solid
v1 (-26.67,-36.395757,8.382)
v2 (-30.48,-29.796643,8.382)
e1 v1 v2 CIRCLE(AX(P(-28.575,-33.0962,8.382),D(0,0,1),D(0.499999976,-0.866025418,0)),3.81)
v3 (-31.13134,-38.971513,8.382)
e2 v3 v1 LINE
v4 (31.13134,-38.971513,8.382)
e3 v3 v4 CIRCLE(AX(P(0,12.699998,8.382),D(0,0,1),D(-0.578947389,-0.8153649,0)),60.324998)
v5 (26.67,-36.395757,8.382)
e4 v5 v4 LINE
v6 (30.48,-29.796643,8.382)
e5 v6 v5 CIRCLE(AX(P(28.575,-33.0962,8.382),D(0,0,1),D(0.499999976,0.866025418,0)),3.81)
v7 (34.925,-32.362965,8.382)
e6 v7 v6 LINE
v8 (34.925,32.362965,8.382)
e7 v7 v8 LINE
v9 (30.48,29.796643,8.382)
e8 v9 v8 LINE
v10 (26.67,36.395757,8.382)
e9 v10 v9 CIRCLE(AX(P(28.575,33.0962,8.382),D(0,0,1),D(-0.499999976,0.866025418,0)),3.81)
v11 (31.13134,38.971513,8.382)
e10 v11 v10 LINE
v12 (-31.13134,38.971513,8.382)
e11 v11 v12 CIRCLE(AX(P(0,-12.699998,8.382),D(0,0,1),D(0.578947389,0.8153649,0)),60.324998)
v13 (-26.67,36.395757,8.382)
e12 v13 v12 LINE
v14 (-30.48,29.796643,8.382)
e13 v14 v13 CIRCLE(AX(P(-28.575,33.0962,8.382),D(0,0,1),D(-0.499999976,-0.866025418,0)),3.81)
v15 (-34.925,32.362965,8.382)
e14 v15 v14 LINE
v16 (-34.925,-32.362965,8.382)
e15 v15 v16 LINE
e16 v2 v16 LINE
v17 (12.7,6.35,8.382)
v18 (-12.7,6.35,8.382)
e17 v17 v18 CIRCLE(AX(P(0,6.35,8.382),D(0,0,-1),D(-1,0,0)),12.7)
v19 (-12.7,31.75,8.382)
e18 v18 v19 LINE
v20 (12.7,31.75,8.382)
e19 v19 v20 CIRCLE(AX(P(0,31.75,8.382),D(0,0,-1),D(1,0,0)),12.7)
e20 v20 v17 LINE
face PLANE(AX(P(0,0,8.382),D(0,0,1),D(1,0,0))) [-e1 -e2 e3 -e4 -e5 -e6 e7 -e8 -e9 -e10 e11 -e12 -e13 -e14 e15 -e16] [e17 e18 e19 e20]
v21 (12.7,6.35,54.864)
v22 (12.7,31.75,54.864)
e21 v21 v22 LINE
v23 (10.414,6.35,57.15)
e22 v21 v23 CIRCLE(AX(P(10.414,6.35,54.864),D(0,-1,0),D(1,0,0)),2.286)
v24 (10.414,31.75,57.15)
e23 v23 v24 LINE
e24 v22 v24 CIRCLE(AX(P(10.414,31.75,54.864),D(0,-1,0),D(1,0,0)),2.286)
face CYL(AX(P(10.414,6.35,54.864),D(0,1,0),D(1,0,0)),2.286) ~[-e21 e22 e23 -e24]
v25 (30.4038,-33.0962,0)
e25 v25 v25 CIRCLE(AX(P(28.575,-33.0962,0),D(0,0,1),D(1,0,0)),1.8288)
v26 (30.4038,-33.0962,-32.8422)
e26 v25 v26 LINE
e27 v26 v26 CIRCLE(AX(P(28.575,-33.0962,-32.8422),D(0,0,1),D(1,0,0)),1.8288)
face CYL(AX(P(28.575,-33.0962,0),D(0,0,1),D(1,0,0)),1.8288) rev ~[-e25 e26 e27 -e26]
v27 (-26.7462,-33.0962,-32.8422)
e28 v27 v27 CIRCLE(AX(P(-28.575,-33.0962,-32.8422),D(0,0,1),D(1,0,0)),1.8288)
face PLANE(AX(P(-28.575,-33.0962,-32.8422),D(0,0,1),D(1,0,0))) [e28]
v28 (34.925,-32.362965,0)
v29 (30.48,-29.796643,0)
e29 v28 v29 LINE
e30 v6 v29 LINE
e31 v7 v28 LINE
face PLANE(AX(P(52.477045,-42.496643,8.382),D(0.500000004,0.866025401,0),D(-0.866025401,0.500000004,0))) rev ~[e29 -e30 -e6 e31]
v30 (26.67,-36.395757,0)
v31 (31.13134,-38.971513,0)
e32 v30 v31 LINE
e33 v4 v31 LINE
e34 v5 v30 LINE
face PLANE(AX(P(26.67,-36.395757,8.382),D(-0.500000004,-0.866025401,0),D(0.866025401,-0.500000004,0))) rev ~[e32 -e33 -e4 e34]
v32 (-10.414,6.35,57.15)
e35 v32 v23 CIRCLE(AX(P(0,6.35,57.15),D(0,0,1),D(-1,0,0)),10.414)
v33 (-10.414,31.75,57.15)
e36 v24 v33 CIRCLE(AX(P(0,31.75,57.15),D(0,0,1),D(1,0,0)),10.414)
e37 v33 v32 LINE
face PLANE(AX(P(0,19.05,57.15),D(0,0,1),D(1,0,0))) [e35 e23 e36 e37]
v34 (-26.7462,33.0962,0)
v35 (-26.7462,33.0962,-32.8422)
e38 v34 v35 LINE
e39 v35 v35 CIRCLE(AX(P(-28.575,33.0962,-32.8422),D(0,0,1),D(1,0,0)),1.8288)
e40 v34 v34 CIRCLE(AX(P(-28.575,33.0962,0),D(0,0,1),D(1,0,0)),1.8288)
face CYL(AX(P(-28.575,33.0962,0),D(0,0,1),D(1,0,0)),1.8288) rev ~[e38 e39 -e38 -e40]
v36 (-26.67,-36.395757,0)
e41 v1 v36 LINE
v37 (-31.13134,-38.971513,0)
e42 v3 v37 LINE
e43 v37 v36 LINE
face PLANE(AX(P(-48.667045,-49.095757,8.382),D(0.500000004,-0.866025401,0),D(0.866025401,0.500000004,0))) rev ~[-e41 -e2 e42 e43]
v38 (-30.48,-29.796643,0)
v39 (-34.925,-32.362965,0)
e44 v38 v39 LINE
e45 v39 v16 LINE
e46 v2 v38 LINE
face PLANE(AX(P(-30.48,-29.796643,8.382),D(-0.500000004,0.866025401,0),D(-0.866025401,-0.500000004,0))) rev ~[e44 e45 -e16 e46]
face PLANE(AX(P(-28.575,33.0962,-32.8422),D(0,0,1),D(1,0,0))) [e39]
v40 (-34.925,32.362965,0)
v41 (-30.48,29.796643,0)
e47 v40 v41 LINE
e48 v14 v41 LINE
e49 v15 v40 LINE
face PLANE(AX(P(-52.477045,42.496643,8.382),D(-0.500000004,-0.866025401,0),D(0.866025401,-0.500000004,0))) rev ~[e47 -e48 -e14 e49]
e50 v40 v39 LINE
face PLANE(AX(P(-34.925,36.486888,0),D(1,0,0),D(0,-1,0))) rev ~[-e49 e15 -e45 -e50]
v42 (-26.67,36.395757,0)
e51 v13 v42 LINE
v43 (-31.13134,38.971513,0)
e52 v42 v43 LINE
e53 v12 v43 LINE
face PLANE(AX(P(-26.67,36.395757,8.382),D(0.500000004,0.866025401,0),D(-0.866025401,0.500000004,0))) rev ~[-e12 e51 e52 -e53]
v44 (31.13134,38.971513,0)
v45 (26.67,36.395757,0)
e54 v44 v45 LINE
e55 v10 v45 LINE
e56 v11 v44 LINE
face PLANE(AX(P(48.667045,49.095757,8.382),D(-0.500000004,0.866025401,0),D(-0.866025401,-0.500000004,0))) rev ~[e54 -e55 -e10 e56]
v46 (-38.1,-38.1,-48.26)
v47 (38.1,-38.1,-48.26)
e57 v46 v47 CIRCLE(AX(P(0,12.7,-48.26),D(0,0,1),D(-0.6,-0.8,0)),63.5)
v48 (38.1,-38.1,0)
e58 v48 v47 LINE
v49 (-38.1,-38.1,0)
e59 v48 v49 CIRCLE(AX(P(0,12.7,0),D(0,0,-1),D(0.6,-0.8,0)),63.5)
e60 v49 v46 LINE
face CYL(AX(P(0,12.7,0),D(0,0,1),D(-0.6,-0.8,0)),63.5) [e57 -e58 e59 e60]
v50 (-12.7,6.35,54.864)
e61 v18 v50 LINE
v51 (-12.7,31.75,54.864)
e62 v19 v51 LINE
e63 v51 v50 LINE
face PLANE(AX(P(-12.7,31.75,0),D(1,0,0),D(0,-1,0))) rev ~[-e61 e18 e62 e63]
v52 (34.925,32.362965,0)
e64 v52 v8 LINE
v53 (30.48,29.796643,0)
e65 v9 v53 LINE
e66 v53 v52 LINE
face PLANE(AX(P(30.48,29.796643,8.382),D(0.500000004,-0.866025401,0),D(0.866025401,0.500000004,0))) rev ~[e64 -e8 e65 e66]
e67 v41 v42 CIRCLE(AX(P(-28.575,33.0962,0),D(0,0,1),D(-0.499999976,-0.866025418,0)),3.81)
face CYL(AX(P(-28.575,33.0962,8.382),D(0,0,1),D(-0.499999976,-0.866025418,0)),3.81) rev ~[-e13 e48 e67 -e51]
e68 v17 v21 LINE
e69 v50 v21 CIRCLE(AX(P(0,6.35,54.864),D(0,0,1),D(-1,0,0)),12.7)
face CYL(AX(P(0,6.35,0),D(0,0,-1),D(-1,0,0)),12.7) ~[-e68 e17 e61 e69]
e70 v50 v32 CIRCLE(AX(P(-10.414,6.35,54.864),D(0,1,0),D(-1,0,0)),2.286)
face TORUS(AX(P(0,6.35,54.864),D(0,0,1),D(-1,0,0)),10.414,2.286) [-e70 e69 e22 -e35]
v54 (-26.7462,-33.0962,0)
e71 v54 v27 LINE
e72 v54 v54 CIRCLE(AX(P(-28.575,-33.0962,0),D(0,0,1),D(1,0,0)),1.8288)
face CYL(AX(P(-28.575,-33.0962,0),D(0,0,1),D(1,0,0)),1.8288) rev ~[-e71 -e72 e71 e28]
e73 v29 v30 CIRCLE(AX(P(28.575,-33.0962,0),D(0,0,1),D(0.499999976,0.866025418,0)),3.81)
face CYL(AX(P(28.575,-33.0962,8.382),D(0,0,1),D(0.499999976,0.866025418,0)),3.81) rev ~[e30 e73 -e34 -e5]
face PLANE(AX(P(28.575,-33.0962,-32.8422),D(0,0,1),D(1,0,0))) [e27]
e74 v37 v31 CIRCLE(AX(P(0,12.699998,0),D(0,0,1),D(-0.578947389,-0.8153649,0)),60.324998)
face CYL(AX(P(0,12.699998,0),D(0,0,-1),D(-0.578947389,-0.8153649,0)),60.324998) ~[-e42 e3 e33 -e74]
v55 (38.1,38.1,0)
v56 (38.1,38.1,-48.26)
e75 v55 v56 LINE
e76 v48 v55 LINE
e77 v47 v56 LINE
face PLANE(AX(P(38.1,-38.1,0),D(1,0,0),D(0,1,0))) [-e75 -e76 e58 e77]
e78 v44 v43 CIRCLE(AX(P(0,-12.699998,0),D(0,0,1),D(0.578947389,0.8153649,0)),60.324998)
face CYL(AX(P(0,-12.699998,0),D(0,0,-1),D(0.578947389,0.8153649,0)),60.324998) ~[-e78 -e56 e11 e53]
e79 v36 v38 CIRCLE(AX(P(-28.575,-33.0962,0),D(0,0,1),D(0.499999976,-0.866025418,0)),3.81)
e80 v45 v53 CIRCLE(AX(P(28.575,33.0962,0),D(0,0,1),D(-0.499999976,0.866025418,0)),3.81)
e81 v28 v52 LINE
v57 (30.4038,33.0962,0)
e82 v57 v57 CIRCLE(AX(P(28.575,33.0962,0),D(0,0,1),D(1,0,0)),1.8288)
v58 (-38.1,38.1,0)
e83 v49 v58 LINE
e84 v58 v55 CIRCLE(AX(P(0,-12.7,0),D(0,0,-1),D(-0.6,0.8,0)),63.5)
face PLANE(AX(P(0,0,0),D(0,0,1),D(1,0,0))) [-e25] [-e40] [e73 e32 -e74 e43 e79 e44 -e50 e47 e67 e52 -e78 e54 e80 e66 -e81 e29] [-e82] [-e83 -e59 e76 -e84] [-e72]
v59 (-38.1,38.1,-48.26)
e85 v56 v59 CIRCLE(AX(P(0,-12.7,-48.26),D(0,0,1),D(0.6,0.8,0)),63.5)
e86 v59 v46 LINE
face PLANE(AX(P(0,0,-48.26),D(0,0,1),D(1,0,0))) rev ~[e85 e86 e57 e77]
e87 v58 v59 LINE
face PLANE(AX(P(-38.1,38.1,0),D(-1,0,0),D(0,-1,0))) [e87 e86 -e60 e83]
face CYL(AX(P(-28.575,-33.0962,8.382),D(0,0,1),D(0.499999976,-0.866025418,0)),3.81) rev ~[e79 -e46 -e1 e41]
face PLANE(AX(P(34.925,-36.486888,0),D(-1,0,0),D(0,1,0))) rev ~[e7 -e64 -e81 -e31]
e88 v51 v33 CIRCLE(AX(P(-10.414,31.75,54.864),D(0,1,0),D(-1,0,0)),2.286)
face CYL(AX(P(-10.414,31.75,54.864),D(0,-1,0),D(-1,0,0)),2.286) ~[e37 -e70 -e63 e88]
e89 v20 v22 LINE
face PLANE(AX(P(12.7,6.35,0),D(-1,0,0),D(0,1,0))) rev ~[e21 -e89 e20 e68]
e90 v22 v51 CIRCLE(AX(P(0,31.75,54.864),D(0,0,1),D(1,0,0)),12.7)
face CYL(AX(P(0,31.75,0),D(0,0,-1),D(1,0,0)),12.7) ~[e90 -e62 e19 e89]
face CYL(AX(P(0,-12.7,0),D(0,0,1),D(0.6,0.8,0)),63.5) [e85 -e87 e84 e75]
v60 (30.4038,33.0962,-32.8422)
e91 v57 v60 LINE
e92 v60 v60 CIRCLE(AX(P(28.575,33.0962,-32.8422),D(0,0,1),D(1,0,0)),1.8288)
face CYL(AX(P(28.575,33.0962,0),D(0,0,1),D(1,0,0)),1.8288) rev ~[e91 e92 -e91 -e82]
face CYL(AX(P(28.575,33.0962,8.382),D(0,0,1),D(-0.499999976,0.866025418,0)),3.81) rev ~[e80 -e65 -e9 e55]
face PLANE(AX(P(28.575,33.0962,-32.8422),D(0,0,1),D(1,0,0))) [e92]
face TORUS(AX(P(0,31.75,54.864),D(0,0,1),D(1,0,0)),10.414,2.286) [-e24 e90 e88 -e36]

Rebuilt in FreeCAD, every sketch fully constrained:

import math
import FreeCAD as App
import Part
import Sketcher
Q = App.Units.Quantity


def edges_at(feature, points):
    """Names of the edges that pass closest to the given points."""
    edges = feature.Shape.Edges
    near = lambda p: min(range(len(edges)), key=lambda i: edges[i].distToShape(Part.Vertex(*p))[0])
    return sorted({f"Edge{near(p) + 1}" for p in points})

doc = App.newDocument("Part")
body = doc.addObject("PartDesign::Body", "Body")

# Sketch on XY plane
sketch1 = body.newObject("Sketcher::SketchObject", "Sketch")
sketch1.AttachmentSupport = (doc.getObject("XY_Plane"), [""])
sketch1.MapMode = "FlatFace"
sketch1.addGeometry(Part.LineSegment(App.Vector(-38, 38, 0), App.Vector(-38, -38, 0)), False)
sketch1.addGeometry(Part.ArcOfCircle(Part.Circle(App.Vector(0, 13, 0), App.Vector(0, 0, 1), 64), math.radians(-127), math.radians(-53)), False)
sketch1.addGeometry(Part.LineSegment(App.Vector(38, -38, 0), App.Vector(38, 38, 0)), False)
sketch1.addGeometry(Part.ArcOfCircle(Part.Circle(App.Vector(0, -13, 0), App.Vector(0, 0, 1), 64), math.radians(53), math.radians(127)), False)
sketch1.addConstraint(Sketcher.Constraint("Coincident", 0, 2, 1, 1))
sketch1.addConstraint(Sketcher.Constraint("Coincident", 1, 2, 2, 1))
sketch1.addConstraint(Sketcher.Constraint("Coincident", 2, 2, 3, 1))
sketch1.addConstraint(Sketcher.Constraint("Coincident", 3, 2, 0, 1))
sketch1.addConstraint(Sketcher.Constraint("Vertical", 0))
sketch1.addConstraint(Sketcher.Constraint("Vertical", 2))
sketch1.addConstraint(Sketcher.Constraint("Equal", 1, 3))
sketch1.addConstraint(Sketcher.Constraint("Symmetric", 1, 3, 3, 3, -1, 1))
sketch1.addConstraint(Sketcher.Constraint("Symmetric", 0, 2, 1, 2, -2))
sketch1.addConstraint(Sketcher.Constraint("Radius", 1, Q("2.5 in")))
sketch1.addConstraint(Sketcher.Constraint("DistanceY", 0, 2, 0, 1, Q("3 in")))
sketch1.addConstraint(Sketcher.Constraint("DistanceY", 3, 3, 1, 3, Q("1 in")))
pad1 = body.newObject("PartDesign::Pad", "Pad")
pad1.Profile = sketch1
pad1.Length = Q("1.9 in")
pad1.Reversed = True

# Sketch on XY plane
sketch2 = body.newObject("Sketcher::SketchObject", "Sketch001")
sketch2.AttachmentSupport = (doc.getObject("XY_Plane"), [""])
sketch2.MapMode = "FlatFace"
sketch2.addGeometry(Part.ArcOfCircle(Part.Circle(App.Vector(0, -13, 0), App.Vector(0, 0, 1), 60), math.radians(55), math.radians(125)), False)
sketch2.addGeometry(Part.LineSegment(App.Vector(-35, 36, 0), App.Vector(-35, -36, 0)), False)
sketch2.addGeometry(Part.ArcOfCircle(Part.Circle(App.Vector(0, 13, 0), App.Vector(0, 0, 1), 60), math.radians(-125), math.radians(-55)), False)
sketch2.addGeometry(Part.LineSegment(App.Vector(35, -36, 0), App.Vector(35, 36, 0)), False)
sketch2.addConstraint(Sketcher.Constraint("Coincident", 0, 2, 1, 1))
sketch2.addConstraint(Sketcher.Constraint("Coincident", 1, 2, 2, 1))
sketch2.addConstraint(Sketcher.Constraint("Coincident", 2, 2, 3, 1))
sketch2.addConstraint(Sketcher.Constraint("Coincident", 3, 2, 0, 1))
sketch2.addConstraint(Sketcher.Constraint("Vertical", 1))
sketch2.addConstraint(Sketcher.Constraint("Vertical", 3))
sketch2.addConstraint(Sketcher.Constraint("Equal", 0, 2))
sketch2.addConstraint(Sketcher.Constraint("Symmetric", 0, 3, 2, 3, -1, 1))
sketch2.addConstraint(Sketcher.Constraint("Symmetric", 1, 2, 2, 2, -2))
sketch2.addConstraint(Sketcher.Constraint("Radius", 0, Q("2.3749999 in")))
sketch2.addConstraint(Sketcher.Constraint("DistanceY", 0, 3, 2, 3, Q("0.9999998 in")))
sketch2.addConstraint(Sketcher.Constraint("DistanceX", 1, 2, 2, 2, Q("2.75 in")))
pad2 = body.newObject("PartDesign::Pad", "Pad001")
pad2.Profile = sketch2
pad2.Length = Q("0.33 in")

# Sketch on XY plane
sketch3 = body.newObject("Sketcher::SketchObject", "Sketch002")
sketch3.AttachmentSupport = (doc.getObject("XY_Plane"), [""])
sketch3.MapMode = "FlatFace"
sketch3.AttachmentOffset = App.Placement(App.Vector(0, 0, 0.33 * 25.4), App.Rotation())
sketch3.addGeometry(Part.ArcOfCircle(Part.Circle(App.Vector(-28.6, -33.1, 0), App.Vector(0, 0, 1), 3.8), math.radians(-60), math.radians(120)), False)
sketch3.addGeometry(Part.LineSegment(App.Vector(-30.5, -29.8, 0), App.Vector(-52.5, -42.5, 0)), False)
sketch3.addGeometry(Part.ArcOfCircle(Part.Circle(App.Vector(-50.6, -45.8, 0), App.Vector(0, 0, 1), 3.8), math.radians(120), math.radians(300)), False)
sketch3.addGeometry(Part.LineSegment(App.Vector(-48.7, -49.1, 0), App.Vector(-26.7, -36.4, 0)), False)
sketch3.addGeometry(Part.LineSegment(App.Vector(52.5, -42.5, 0), App.Vector(30.5, -29.8, 0)), False)
sketch3.addGeometry(Part.ArcOfCircle(Part.Circle(App.Vector(28.6, -33.1, 0), App.Vector(0, 0, 1), 3.8), math.radians(60), math.radians(240)), False)
sketch3.addGeometry(Part.LineSegment(App.Vector(26.7, -36.4, 0), App.Vector(48.7, -49.1, 0)), False)
sketch3.addGeometry(Part.ArcOfCircle(Part.Circle(App.Vector(50.6, -45.8, 0), App.Vector(0, 0, 1), 3.8), math.radians(-120), math.radians(60)), False)
sketch3.addGeometry(Part.LineSegment(App.Vector(-52.5, 42.5, 0), App.Vector(-30.5, 29.8, 0)), False)
sketch3.addGeometry(Part.ArcOfCircle(Part.Circle(App.Vector(-28.6, 33.1, 0), App.Vector(0, 0, 1), 3.8), math.radians(-120), math.radians(60)), False)
sketch3.addGeometry(Part.LineSegment(App.Vector(-26.7, 36.4, 0), App.Vector(-48.7, 49.1, 0)), False)
sketch3.addGeometry(Part.ArcOfCircle(Part.Circle(App.Vector(-50.6, 45.8, 0), App.Vector(0, 0, 1), 3.8), math.radians(60), math.radians(240)), False)
sketch3.addGeometry(Part.ArcOfCircle(Part.Circle(App.Vector(28.6, 33.1, 0), App.Vector(0, 0, 1), 3.8), math.radians(120), math.radians(300)), False)
sketch3.addGeometry(Part.LineSegment(App.Vector(30.5, 29.8, 0), App.Vector(52.5, 42.5, 0)), False)
sketch3.addGeometry(Part.ArcOfCircle(Part.Circle(App.Vector(50.6, 45.8, 0), App.Vector(0, 0, 1), 3.8), math.radians(-60), math.radians(120)), False)
sketch3.addGeometry(Part.LineSegment(App.Vector(48.7, 49.1, 0), App.Vector(26.7, 36.4, 0)), False)
sketch3.addConstraint(Sketcher.Constraint("Tangent", 0, 2, 1, 1))
sketch3.addConstraint(Sketcher.Constraint("Tangent", 1, 2, 2, 1))
sketch3.addConstraint(Sketcher.Constraint("Tangent", 2, 2, 3, 1))
sketch3.addConstraint(Sketcher.Constraint("Tangent", 3, 2, 0, 1))
sketch3.addConstraint(Sketcher.Constraint("Tangent", 4, 2, 5, 1))
sketch3.addConstraint(Sketcher.Constraint("Tangent", 5, 2, 6, 1))
sketch3.addConstraint(Sketcher.Constraint("Tangent", 6, 2, 7, 1))
sketch3.addConstraint(Sketcher.Constraint("Tangent", 7, 2, 4, 1))
sketch3.addConstraint(Sketcher.Constraint("Tangent", 8, 2, 9, 1))
sketch3.addConstraint(Sketcher.Constraint("Tangent", 9, 2, 10, 1))
sketch3.addConstraint(Sketcher.Constraint("Tangent", 10, 2, 11, 1))
sketch3.addConstraint(Sketcher.Constraint("Tangent", 11, 2, 8, 1))
sketch3.addConstraint(Sketcher.Constraint("Tangent", 12, 2, 13, 1))
sketch3.addConstraint(Sketcher.Constraint("Tangent", 13, 2, 14, 1))
sketch3.addConstraint(Sketcher.Constraint("Tangent", 14, 2, 15, 1))
sketch3.addConstraint(Sketcher.Constraint("Tangent", 15, 2, 12, 1))
sketch3.addConstraint(Sketcher.Constraint("Equal", 0, 2))
sketch3.addConstraint(Sketcher.Constraint("Equal", 2, 5))
sketch3.addConstraint(Sketcher.Constraint("Equal", 5, 7))
sketch3.addConstraint(Sketcher.Constraint("Equal", 7, 9))
sketch3.addConstraint(Sketcher.Constraint("Equal", 9, 11))
sketch3.addConstraint(Sketcher.Constraint("Equal", 11, 12))
sketch3.addConstraint(Sketcher.Constraint("Equal", 12, 14))
sketch3.addConstraint(Sketcher.Constraint("Symmetric", 5, 3, 9, 3, -1, 1))
sketch3.addConstraint(Sketcher.Constraint("Symmetric", 7, 3, 11, 3, -1, 1))
sketch3.addConstraint(Sketcher.Constraint("Symmetric", 0, 3, 12, 3, -1, 1))
sketch3.addConstraint(Sketcher.Constraint("Symmetric", 2, 3, 14, 3, -1, 1))
sketch3.addConstraint(Sketcher.Constraint("Symmetric", 0, 3, 5, 3, -2))
sketch3.addConstraint(Sketcher.Constraint("Symmetric", 2, 3, 7, 3, -2))
sketch3.addConstraint(Sketcher.Constraint("Radius", 0, Q("0.15 in")))
sketch3.addConstraint(Sketcher.Constraint("Distance", 1, Q("1 in")))
sketch3.addConstraint(Sketcher.Constraint("Angle", 1, Q("-150 deg")))
sketch3.addConstraint(Sketcher.Constraint("DistanceX", 0, 2, -1, 1, Q("1.2 in")))
sketch3.addConstraint(Sketcher.Constraint("DistanceY", 0, 3, -1, 1, Q("1.303 in")))
pocket1 = body.newObject("PartDesign::Pocket", "Pocket")
pocket1.Profile = sketch3
pocket1.Length = Q("0.33 in")

# Sketch on XY plane
sketch4 = body.newObject("Sketcher::SketchObject", "Sketch003")
sketch4.AttachmentSupport = (doc.getObject("XY_Plane"), [""])
sketch4.MapMode = "FlatFace"
sketch4.addGeometry(Part.Circle(App.Vector(28.6, -33.1, 0), App.Vector(0, 0, 1), 1.8), False)
sketch4.addGeometry(Part.Circle(App.Vector(-28.6, -33.1, 0), App.Vector(0, 0, 1), 1.8), False)
sketch4.addGeometry(Part.Circle(App.Vector(28.6, 33.1, 0), App.Vector(0, 0, 1), 1.8), False)
sketch4.addGeometry(Part.Circle(App.Vector(-28.6, 33.1, 0), App.Vector(0, 0, 1), 1.8), False)
sketch4.addConstraint(Sketcher.Constraint("Equal", 0, 1))
sketch4.addConstraint(Sketcher.Constraint("Equal", 1, 2))
sketch4.addConstraint(Sketcher.Constraint("Equal", 2, 3))
sketch4.addConstraint(Sketcher.Constraint("Symmetric", 1, 3, 2, 3, -1, 1))
sketch4.addConstraint(Sketcher.Constraint("Symmetric", 0, 3, 3, 3, -1, 1))
sketch4.addConstraint(Sketcher.Constraint("Symmetric", 0, 3, 1, 3, -2))
sketch4.addConstraint(Sketcher.Constraint("Diameter", 0, Q("0.144 in")))
sketch4.addConstraint(Sketcher.Constraint("DistanceX", 1, 3, 0, 3, Q("2.25 in")))
sketch4.addConstraint(Sketcher.Constraint("DistanceY", 0, 3, -1, 1, Q("1.303 in")))
pocket2 = body.newObject("PartDesign::Pocket", "Pocket001")
pocket2.Profile = sketch4
pocket2.Length = Q("1.293 in")

# Sketch on XY plane
sketch5 = body.newObject("Sketcher::SketchObject", "Sketch004")
sketch5.AttachmentSupport = (doc.getObject("XY_Plane"), [""])
sketch5.MapMode = "FlatFace"
sketch5.addGeometry(Part.ArcOfCircle(Part.Circle(App.Vector(0, 6, 0), App.Vector(0, 0, 1), 13), math.radians(180), math.radians(360)), False)
sketch5.addGeometry(Part.LineSegment(App.Vector(13, 6, 0), App.Vector(13, 32, 0)), False)
sketch5.addGeometry(Part.ArcOfCircle(Part.Circle(App.Vector(0, 32, 0), App.Vector(0, 0, 1), 13), math.radians(0), math.radians(180)), False)
sketch5.addGeometry(Part.LineSegment(App.Vector(-13, 32, 0), App.Vector(-13, 6, 0)), False)
sketch5.addConstraint(Sketcher.Constraint("Tangent", 0, 2, 1, 1))
sketch5.addConstraint(Sketcher.Constraint("Tangent", 1, 2, 2, 1))
sketch5.addConstraint(Sketcher.Constraint("Tangent", 2, 2, 3, 1))
sketch5.addConstraint(Sketcher.Constraint("Tangent", 3, 2, 0, 1))
sketch5.addConstraint(Sketcher.Constraint("Vertical", 1))
sketch5.addConstraint(Sketcher.Constraint("Vertical", 3))
sketch5.addConstraint(Sketcher.Constraint("PointOnObject", 0, 3, -2))
sketch5.addConstraint(Sketcher.Constraint("Radius", 0, Q("0.5 in")))
sketch5.addConstraint(Sketcher.Constraint("DistanceY", 1, 1, 1, 2, Q("1 in")))
sketch5.addConstraint(Sketcher.Constraint("DistanceY", -1, 1, 0, 3, Q("0.25 in")))
pad3 = body.newObject("PartDesign::Pad", "Pad002")
pad3.Profile = sketch5
pad3.Length = Q("2.25 in")
doc.recompute()

fillet = body.newObject("PartDesign::Fillet", "Fillet")
fillet.Base = (pad3, edges_at(pad3, [(12.7, 19.05, 57.15)]))
fillet.Radius = Q("0.09 in")

doc.recompute()
